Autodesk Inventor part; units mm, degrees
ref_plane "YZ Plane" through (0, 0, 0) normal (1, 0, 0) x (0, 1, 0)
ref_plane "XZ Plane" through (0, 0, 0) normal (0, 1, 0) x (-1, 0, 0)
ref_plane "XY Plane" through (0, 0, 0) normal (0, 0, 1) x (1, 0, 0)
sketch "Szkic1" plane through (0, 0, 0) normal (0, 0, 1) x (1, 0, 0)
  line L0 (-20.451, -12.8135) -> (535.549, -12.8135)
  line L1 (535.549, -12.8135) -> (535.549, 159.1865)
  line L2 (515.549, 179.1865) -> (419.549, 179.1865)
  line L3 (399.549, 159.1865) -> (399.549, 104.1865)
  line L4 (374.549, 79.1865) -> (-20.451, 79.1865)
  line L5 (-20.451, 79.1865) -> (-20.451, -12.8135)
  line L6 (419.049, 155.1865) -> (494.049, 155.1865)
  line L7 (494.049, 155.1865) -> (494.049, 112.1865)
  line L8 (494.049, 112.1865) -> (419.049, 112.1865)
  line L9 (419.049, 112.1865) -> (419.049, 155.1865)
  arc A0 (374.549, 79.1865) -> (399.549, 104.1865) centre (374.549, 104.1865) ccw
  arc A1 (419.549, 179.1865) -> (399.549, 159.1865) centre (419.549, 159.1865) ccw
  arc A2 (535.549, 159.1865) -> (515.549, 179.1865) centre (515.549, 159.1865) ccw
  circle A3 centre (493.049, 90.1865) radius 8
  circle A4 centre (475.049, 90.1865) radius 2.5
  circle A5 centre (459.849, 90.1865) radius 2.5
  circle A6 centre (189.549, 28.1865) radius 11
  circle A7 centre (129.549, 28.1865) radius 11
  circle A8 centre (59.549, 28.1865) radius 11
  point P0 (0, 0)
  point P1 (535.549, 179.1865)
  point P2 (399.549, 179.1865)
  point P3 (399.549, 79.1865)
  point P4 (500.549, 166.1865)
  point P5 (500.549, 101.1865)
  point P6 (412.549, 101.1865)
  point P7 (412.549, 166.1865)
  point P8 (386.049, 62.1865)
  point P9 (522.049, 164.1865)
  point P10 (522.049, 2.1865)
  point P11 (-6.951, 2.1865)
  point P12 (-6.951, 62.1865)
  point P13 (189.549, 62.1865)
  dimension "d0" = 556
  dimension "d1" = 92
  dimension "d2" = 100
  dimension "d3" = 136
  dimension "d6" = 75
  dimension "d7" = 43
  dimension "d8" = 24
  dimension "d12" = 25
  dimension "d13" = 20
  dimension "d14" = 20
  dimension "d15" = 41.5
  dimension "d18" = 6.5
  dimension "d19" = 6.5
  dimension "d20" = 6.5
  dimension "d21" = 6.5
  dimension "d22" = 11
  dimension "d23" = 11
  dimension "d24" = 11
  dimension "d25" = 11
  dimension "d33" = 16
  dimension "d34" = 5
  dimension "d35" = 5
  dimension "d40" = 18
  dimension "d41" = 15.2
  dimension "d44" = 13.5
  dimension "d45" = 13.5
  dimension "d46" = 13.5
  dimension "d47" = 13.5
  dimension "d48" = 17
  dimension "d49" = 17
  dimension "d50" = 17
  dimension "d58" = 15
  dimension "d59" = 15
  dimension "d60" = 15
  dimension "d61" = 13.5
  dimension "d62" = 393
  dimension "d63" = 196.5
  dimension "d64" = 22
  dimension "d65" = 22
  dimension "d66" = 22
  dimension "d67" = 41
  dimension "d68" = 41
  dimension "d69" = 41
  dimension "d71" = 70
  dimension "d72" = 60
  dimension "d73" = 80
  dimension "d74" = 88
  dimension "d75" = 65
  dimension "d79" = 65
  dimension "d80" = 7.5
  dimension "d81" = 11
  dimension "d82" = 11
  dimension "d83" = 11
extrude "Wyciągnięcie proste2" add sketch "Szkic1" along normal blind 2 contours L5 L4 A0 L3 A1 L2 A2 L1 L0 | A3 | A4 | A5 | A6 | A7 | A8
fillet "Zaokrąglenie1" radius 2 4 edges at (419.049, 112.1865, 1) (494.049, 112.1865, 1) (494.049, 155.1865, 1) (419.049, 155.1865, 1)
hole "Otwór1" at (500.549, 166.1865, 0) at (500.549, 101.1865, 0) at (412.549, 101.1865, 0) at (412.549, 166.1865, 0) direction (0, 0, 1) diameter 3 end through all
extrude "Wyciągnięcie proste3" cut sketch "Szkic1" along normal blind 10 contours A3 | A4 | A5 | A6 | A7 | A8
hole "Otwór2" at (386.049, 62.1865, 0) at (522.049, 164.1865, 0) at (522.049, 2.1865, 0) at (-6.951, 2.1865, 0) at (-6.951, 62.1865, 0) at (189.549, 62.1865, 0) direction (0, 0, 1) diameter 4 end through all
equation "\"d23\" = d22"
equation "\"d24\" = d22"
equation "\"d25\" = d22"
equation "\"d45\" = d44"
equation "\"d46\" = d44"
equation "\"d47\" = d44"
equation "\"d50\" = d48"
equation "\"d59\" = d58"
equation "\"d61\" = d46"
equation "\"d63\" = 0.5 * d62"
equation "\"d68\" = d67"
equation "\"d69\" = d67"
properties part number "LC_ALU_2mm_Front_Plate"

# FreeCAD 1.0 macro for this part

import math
import FreeCAD as App
import Part
import Sketcher


def edges_at(feature, points):
    """Names of the edges that pass closest to the given points."""
    edges = feature.Shape.Edges
    near = lambda p: min(range(len(edges)), key=lambda i: edges[i].distToShape(Part.Vertex(*p))[0])
    return sorted({f"Edge{near(p) + 1}" for p in points})

doc = App.newDocument("Part")
params = doc.addObject("Spreadsheet::Sheet", "Params")
for row, (alias, value) in enumerate([
    ("sketch1_radius", "20 mm"),
    ("sketch1_radius2", "25 mm"),
    ("sketch1_width", "556 mm"),
    ("sketch1_width2", "75 mm"),
    ("sketch1_height", "92 mm"),
    ("pad1_length", "2 mm"),
    ("fillet_radius", "2 mm"),
    ("sketch2_diameter", "3 mm"),
    ("hole_diameter", "3 mm"),
    ("sketch3_diameter", "16 mm"),
    ("sketch3_diameter2", "5 mm"),
    ("sketch3_diameter3", "22 mm"),
    ("pocket1_length", "10 mm"),
    ("sketch4_diameter", "4 mm"),
    ("hole2_diameter", "4 mm"),
], start=1):
    params.set(f"A{row}", alias)
    params.set(f"B{row}", "=" + value)
    params.setAlias(f"B{row}", alias)

body = doc.addObject("PartDesign::Body", "Body")

# Sketch on XY plane
sketch1 = body.newObject("Sketcher::SketchObject", "Sketch")
sketch1.AttachmentSupport = (doc.getObject("XY_Plane"), [""])
sketch1.MapMode = "FlatFace"
sketch1.addGeometry([
    Part.LineSegment(App.Vector(-20, 79, 0), App.Vector(-20, -13, 0)),  # 0
    Part.LineSegment(App.Vector(-20, -13, 0), App.Vector(536, -13, 0)),  # 1
    Part.LineSegment(App.Vector(536, -13, 0), App.Vector(536, 159, 0)),  # 2
    Part.ArcOfCircle(Part.Circle(App.Vector(516, 159, 0), App.Vector(0, 0, 1), 20), math.radians(0), math.radians(90)),  # 3
    Part.LineSegment(App.Vector(516, 179, 0), App.Vector(420, 179, 0)),  # 4
    Part.ArcOfCircle(Part.Circle(App.Vector(420, 159, 0), App.Vector(0, 0, 1), 20), math.radians(90), math.radians(180)),  # 5
    Part.LineSegment(App.Vector(400, 159, 0), App.Vector(400, 104, 0)),  # 6
    Part.ArcOfCircle(Part.Circle(App.Vector(375, 104, 0), App.Vector(0, 0, 1), 25), math.radians(-90), math.radians(0)),  # 7
    Part.LineSegment(App.Vector(375, 79, 0), App.Vector(-20, 79, 0)),  # 8
    Part.LineSegment(App.Vector(419, 112, 0), App.Vector(419, 155, 0)),  # 9
    Part.LineSegment(App.Vector(419, 155, 0), App.Vector(494, 155, 0)),  # 10
    Part.LineSegment(App.Vector(494, 155, 0), App.Vector(494, 112, 0)),  # 11
    Part.LineSegment(App.Vector(494, 112, 0), App.Vector(419, 112, 0)),  # 12
], False)
sketch1.addConstraint([
    Sketcher.Constraint("Coincident", 0, 2, 1, 1),
    Sketcher.Constraint("Coincident", 1, 2, 2, 1),
    Sketcher.Constraint("Tangent", 2, 2, 3, 1),
    Sketcher.Constraint("Tangent", 3, 2, 4, 1),
    Sketcher.Constraint("Tangent", 4, 2, 5, 1),
    Sketcher.Constraint("Tangent", 5, 2, 6, 1),
    Sketcher.Constraint("Tangent", 6, 2, 7, 2),
    Sketcher.Constraint("Tangent", 7, 1, 8, 1),
    Sketcher.Constraint("Coincident", 8, 2, 0, 1),
    Sketcher.Constraint("Coincident", 9, 2, 10, 1),
    Sketcher.Constraint("Coincident", 10, 2, 11, 1),
    Sketcher.Constraint("Coincident", 11, 2, 12, 1),
    Sketcher.Constraint("Coincident", 12, 2, 9, 1),
    Sketcher.Constraint("Vertical", 0),
    Sketcher.Constraint("Horizontal", 1),
    Sketcher.Constraint("Vertical", 2),
    Sketcher.Constraint("Horizontal", 4),
    Sketcher.Constraint("Vertical", 6),
    Sketcher.Constraint("Horizontal", 8),
    Sketcher.Constraint("Vertical", 9),
    Sketcher.Constraint("Horizontal", 10),
    Sketcher.Constraint("Vertical", 11),
    Sketcher.Constraint("Horizontal", 12),
    Sketcher.Constraint("Equal", 3, 5),
    Sketcher.Constraint("Radius", 3, 20.0),
    Sketcher.Constraint("Radius", 7, 25.0),
    Sketcher.Constraint("DistanceX", 1, 1, 1, 2, 556.0),
    Sketcher.Constraint("DistanceX", 10, 1, 10, 2, 75.0),
    Sketcher.Constraint("DistanceY", 0, 2, 0, 1, 92.0),
    Sketcher.Constraint("DistanceY", 9, 1, 9, 2, 43.0),
    Sketcher.Constraint("DistanceY", 7, 3, 3, 2, 75.0),
    Sketcher.Constraint("DistanceY", 9, 2, 4, 2, 24.0),
    Sketcher.Constraint("DistanceX", 10, 2, 2, 2, 41.5),
    Sketcher.Constraint("DistanceX", 4, 2, 4, 1, 96.0),
    Sketcher.Constraint("DistanceX", -1, 1, 3, 3, 515.549),
    Sketcher.Constraint("DistanceY", -1, 1, 3, 3, 159.1865),
])
sketch1.setExpression("Constraints[24]", "Params.sketch1_radius")
sketch1.setExpression("Constraints[25]", "Params.sketch1_radius2")
sketch1.setExpression("Constraints[26]", "Params.sketch1_width")
sketch1.setExpression("Constraints[27]", "Params.sketch1_width2")
sketch1.setExpression("Constraints[28]", "Params.sketch1_height")
pad1 = body.newObject("PartDesign::Pad", "Pad")
pad1.Profile = sketch1
pad1.setExpression("Length", "Params.pad1_length")
doc.recompute()

fillet = body.newObject("PartDesign::Fillet", "Fillet")
fillet.Base = (pad1, edges_at(pad1, [
    (419.049, 112.186, 1),
    (494.049, 112.186, 1),
    (494.049, 155.186, 1),
    (419.049, 155.186, 1),
]))
fillet.setExpression("Radius", "Params.fillet_radius")

# Sketch on XY plane
sketch2 = body.newObject("Sketcher::SketchObject", "Sketch001")
sketch2.AttachmentSupport = (doc.getObject("XY_Plane"), [""])
sketch2.MapMode = "FlatFace"
sketch2.addGeometry([
    Part.Circle(App.Vector(500.5, 166.2, 0), App.Vector(0, 0, 1), 1.5),
    Part.Circle(App.Vector(500.5, 101.2, 0), App.Vector(0, 0, 1), 1.5),
    Part.Circle(App.Vector(412.5, 101.2, 0), App.Vector(0, 0, 1), 1.5),
    Part.Circle(App.Vector(412.5, 166.2, 0), App.Vector(0, 0, 1), 1.5),
], False)
sketch2.addConstraint([
    Sketcher.Constraint("Equal", 0, 1),
    Sketcher.Constraint("Equal", 1, 2),
    Sketcher.Constraint("Equal", 2, 3),
    Sketcher.Constraint("Horizontal", 1, 3, 2, 3),
    Sketcher.Constraint("Horizontal", 0, 3, 3, 3),
    Sketcher.Constraint("Vertical", 0, 3, 1, 3),
    Sketcher.Constraint("Vertical", 2, 3, 3, 3),
    Sketcher.Constraint("Diameter", 0, 3.0),
    Sketcher.Constraint("DistanceY", 1, 3, 0, 3, 65.0),
    Sketcher.Constraint("DistanceX", 2, 3, 1, 3, 88.0),
    Sketcher.Constraint("DistanceX", -1, 1, 0, 3, 500.549),
    Sketcher.Constraint("DistanceY", -1, 1, 0, 3, 166.1865),
])
sketch2.setExpression("Constraints[7]", "Params.sketch2_diameter")
doc.recompute()
hole = body.newObject("PartDesign::Hole", "Hole")
hole.Profile = sketch2
hole.ThreadType = "None"
hole.setExpression("Diameter", "Params.hole_diameter")
hole.DepthType = "ThroughAll"
hole.Reversed = True

# Sketch on XY plane
sketch3 = body.newObject("Sketcher::SketchObject", "Sketch002")
sketch3.AttachmentSupport = (doc.getObject("XY_Plane"), [""])
sketch3.MapMode = "FlatFace"
sketch3.addGeometry([
    Part.Circle(App.Vector(493, 90.2, 0), App.Vector(0, 0, 1), 8),  # 0
    Part.Circle(App.Vector(475, 90.2, 0), App.Vector(0, 0, 1), 2.5),  # 1
    Part.Circle(App.Vector(459.8, 90.2, 0), App.Vector(0, 0, 1), 2.5),  # 2
    Part.Circle(App.Vector(189.5, 28.2, 0), App.Vector(0, 0, 1), 11),  # 3
    Part.Circle(App.Vector(129.5, 28.2, 0), App.Vector(0, 0, 1), 11),  # 4
    Part.Circle(App.Vector(59.5, 28.2, 0), App.Vector(0, 0, 1), 11),  # 5
], False)
sketch3.addConstraint([
    Sketcher.Constraint("Equal", 1, 2),
    Sketcher.Constraint("Equal", 3, 4),
    Sketcher.Constraint("Equal", 4, 5),
    Sketcher.Constraint("Horizontal", 0, 3, 1, 3),
    Sketcher.Constraint("Horizontal", 1, 3, 2, 3),
    Sketcher.Constraint("Horizontal", 3, 3, 4, 3),
    Sketcher.Constraint("Horizontal", 4, 3, 5, 3),
    Sketcher.Constraint("Diameter", 0, 16.0),
    Sketcher.Constraint("Diameter", 1, 5.0),
    Sketcher.Constraint("Diameter", 3, 22.0),
    Sketcher.Constraint("DistanceX", 1, 3, 0, 3, 18.0),
    Sketcher.Constraint("DistanceX", 4, 3, 3, 3, 60.0),
    Sketcher.Constraint("DistanceX", 5, 3, 4, 3, 70.0),
    Sketcher.Constraint("DistanceX", 2, 3, 1, 3, 15.2),
    Sketcher.Constraint("DistanceY", 3, 3, 2, 3, 62.0),
    Sketcher.Constraint("DistanceX", 3, 3, 2, 3, 270.3),
    Sketcher.Constraint("DistanceX", -1, 1, 0, 3, 493.049),
    Sketcher.Constraint("DistanceY", -1, 1, 0, 3, 90.1865),
])
sketch3.setExpression("Constraints[7]", "Params.sketch3_diameter")
sketch3.setExpression("Constraints[8]", "Params.sketch3_diameter2")
sketch3.setExpression("Constraints[9]", "Params.sketch3_diameter3")
pocket1 = body.newObject("PartDesign::Pocket", "Pocket")
pocket1.Profile = sketch3
pocket1.setExpression("Length", "Params.pocket1_length")
pocket1.Reversed = True

# Sketch on XY plane
sketch4 = body.newObject("Sketcher::SketchObject", "Sketch003")
sketch4.AttachmentSupport = (doc.getObject("XY_Plane"), [""])
sketch4.MapMode = "FlatFace"
sketch4.addGeometry([
    Part.Circle(App.Vector(386, 62.2, 0), App.Vector(0, 0, 1), 2),  # 0
    Part.Circle(App.Vector(522, 164.2, 0), App.Vector(0, 0, 1), 2),  # 1
    Part.Circle(App.Vector(522, 2.2, 0), App.Vector(0, 0, 1), 2),  # 2
    Part.Circle(App.Vector(-7, 2.2, 0), App.Vector(0, 0, 1), 2),  # 3
    Part.Circle(App.Vector(-7, 62.2, 0), App.Vector(0, 0, 1), 2),  # 4
    Part.Circle(App.Vector(189.5, 62.2, 0), App.Vector(0, 0, 1), 2),  # 5
], False)
sketch4.addConstraint([
    Sketcher.Constraint("Equal", 0, 1),
    Sketcher.Constraint("Equal", 1, 2),
    Sketcher.Constraint("Equal", 2, 3),
    Sketcher.Constraint("Equal", 3, 4),
    Sketcher.Constraint("Equal", 4, 5),
    Sketcher.Constraint("Horizontal", 2, 3, 3, 3),
    Sketcher.Constraint("Horizontal", 0, 3, 4, 3),
    Sketcher.Constraint("Horizontal", 4, 3, 5, 3),
    Sketcher.Constraint("Vertical", 1, 3, 2, 3),
    Sketcher.Constraint("Vertical", 3, 3, 4, 3),
    Sketcher.Constraint("Diameter", 0, 4.0),
    Sketcher.Constraint("DistanceX", 0, 3, 1, 3, 136.0),
    Sketcher.Constraint("DistanceY", 0, 3, 1, 3, 102.0),
    Sketcher.Constraint("DistanceY", 2, 3, 0, 3, 60.0),
    Sketcher.Constraint("DistanceX", 3, 3, 0, 3, 393.0),
    Sketcher.Constraint("DistanceX", 5, 3, 0, 3, 196.5),
    Sketcher.Constraint("DistanceX", -1, 1, 0, 3, 386.049),
    Sketcher.Constraint("DistanceY", -1, 1, 0, 3, 62.1865),
])
sketch4.setExpression("Constraints[10]", "Params.sketch4_diameter")
doc.recompute()
hole2 = body.newObject("PartDesign::Hole", "Hole001")
hole2.Profile = sketch4
hole2.ThreadType = "None"
hole2.setExpression("Diameter", "Params.hole2_diameter")
hole2.DepthType = "ThroughAll"
hole2.Reversed = True

doc.recompute()
